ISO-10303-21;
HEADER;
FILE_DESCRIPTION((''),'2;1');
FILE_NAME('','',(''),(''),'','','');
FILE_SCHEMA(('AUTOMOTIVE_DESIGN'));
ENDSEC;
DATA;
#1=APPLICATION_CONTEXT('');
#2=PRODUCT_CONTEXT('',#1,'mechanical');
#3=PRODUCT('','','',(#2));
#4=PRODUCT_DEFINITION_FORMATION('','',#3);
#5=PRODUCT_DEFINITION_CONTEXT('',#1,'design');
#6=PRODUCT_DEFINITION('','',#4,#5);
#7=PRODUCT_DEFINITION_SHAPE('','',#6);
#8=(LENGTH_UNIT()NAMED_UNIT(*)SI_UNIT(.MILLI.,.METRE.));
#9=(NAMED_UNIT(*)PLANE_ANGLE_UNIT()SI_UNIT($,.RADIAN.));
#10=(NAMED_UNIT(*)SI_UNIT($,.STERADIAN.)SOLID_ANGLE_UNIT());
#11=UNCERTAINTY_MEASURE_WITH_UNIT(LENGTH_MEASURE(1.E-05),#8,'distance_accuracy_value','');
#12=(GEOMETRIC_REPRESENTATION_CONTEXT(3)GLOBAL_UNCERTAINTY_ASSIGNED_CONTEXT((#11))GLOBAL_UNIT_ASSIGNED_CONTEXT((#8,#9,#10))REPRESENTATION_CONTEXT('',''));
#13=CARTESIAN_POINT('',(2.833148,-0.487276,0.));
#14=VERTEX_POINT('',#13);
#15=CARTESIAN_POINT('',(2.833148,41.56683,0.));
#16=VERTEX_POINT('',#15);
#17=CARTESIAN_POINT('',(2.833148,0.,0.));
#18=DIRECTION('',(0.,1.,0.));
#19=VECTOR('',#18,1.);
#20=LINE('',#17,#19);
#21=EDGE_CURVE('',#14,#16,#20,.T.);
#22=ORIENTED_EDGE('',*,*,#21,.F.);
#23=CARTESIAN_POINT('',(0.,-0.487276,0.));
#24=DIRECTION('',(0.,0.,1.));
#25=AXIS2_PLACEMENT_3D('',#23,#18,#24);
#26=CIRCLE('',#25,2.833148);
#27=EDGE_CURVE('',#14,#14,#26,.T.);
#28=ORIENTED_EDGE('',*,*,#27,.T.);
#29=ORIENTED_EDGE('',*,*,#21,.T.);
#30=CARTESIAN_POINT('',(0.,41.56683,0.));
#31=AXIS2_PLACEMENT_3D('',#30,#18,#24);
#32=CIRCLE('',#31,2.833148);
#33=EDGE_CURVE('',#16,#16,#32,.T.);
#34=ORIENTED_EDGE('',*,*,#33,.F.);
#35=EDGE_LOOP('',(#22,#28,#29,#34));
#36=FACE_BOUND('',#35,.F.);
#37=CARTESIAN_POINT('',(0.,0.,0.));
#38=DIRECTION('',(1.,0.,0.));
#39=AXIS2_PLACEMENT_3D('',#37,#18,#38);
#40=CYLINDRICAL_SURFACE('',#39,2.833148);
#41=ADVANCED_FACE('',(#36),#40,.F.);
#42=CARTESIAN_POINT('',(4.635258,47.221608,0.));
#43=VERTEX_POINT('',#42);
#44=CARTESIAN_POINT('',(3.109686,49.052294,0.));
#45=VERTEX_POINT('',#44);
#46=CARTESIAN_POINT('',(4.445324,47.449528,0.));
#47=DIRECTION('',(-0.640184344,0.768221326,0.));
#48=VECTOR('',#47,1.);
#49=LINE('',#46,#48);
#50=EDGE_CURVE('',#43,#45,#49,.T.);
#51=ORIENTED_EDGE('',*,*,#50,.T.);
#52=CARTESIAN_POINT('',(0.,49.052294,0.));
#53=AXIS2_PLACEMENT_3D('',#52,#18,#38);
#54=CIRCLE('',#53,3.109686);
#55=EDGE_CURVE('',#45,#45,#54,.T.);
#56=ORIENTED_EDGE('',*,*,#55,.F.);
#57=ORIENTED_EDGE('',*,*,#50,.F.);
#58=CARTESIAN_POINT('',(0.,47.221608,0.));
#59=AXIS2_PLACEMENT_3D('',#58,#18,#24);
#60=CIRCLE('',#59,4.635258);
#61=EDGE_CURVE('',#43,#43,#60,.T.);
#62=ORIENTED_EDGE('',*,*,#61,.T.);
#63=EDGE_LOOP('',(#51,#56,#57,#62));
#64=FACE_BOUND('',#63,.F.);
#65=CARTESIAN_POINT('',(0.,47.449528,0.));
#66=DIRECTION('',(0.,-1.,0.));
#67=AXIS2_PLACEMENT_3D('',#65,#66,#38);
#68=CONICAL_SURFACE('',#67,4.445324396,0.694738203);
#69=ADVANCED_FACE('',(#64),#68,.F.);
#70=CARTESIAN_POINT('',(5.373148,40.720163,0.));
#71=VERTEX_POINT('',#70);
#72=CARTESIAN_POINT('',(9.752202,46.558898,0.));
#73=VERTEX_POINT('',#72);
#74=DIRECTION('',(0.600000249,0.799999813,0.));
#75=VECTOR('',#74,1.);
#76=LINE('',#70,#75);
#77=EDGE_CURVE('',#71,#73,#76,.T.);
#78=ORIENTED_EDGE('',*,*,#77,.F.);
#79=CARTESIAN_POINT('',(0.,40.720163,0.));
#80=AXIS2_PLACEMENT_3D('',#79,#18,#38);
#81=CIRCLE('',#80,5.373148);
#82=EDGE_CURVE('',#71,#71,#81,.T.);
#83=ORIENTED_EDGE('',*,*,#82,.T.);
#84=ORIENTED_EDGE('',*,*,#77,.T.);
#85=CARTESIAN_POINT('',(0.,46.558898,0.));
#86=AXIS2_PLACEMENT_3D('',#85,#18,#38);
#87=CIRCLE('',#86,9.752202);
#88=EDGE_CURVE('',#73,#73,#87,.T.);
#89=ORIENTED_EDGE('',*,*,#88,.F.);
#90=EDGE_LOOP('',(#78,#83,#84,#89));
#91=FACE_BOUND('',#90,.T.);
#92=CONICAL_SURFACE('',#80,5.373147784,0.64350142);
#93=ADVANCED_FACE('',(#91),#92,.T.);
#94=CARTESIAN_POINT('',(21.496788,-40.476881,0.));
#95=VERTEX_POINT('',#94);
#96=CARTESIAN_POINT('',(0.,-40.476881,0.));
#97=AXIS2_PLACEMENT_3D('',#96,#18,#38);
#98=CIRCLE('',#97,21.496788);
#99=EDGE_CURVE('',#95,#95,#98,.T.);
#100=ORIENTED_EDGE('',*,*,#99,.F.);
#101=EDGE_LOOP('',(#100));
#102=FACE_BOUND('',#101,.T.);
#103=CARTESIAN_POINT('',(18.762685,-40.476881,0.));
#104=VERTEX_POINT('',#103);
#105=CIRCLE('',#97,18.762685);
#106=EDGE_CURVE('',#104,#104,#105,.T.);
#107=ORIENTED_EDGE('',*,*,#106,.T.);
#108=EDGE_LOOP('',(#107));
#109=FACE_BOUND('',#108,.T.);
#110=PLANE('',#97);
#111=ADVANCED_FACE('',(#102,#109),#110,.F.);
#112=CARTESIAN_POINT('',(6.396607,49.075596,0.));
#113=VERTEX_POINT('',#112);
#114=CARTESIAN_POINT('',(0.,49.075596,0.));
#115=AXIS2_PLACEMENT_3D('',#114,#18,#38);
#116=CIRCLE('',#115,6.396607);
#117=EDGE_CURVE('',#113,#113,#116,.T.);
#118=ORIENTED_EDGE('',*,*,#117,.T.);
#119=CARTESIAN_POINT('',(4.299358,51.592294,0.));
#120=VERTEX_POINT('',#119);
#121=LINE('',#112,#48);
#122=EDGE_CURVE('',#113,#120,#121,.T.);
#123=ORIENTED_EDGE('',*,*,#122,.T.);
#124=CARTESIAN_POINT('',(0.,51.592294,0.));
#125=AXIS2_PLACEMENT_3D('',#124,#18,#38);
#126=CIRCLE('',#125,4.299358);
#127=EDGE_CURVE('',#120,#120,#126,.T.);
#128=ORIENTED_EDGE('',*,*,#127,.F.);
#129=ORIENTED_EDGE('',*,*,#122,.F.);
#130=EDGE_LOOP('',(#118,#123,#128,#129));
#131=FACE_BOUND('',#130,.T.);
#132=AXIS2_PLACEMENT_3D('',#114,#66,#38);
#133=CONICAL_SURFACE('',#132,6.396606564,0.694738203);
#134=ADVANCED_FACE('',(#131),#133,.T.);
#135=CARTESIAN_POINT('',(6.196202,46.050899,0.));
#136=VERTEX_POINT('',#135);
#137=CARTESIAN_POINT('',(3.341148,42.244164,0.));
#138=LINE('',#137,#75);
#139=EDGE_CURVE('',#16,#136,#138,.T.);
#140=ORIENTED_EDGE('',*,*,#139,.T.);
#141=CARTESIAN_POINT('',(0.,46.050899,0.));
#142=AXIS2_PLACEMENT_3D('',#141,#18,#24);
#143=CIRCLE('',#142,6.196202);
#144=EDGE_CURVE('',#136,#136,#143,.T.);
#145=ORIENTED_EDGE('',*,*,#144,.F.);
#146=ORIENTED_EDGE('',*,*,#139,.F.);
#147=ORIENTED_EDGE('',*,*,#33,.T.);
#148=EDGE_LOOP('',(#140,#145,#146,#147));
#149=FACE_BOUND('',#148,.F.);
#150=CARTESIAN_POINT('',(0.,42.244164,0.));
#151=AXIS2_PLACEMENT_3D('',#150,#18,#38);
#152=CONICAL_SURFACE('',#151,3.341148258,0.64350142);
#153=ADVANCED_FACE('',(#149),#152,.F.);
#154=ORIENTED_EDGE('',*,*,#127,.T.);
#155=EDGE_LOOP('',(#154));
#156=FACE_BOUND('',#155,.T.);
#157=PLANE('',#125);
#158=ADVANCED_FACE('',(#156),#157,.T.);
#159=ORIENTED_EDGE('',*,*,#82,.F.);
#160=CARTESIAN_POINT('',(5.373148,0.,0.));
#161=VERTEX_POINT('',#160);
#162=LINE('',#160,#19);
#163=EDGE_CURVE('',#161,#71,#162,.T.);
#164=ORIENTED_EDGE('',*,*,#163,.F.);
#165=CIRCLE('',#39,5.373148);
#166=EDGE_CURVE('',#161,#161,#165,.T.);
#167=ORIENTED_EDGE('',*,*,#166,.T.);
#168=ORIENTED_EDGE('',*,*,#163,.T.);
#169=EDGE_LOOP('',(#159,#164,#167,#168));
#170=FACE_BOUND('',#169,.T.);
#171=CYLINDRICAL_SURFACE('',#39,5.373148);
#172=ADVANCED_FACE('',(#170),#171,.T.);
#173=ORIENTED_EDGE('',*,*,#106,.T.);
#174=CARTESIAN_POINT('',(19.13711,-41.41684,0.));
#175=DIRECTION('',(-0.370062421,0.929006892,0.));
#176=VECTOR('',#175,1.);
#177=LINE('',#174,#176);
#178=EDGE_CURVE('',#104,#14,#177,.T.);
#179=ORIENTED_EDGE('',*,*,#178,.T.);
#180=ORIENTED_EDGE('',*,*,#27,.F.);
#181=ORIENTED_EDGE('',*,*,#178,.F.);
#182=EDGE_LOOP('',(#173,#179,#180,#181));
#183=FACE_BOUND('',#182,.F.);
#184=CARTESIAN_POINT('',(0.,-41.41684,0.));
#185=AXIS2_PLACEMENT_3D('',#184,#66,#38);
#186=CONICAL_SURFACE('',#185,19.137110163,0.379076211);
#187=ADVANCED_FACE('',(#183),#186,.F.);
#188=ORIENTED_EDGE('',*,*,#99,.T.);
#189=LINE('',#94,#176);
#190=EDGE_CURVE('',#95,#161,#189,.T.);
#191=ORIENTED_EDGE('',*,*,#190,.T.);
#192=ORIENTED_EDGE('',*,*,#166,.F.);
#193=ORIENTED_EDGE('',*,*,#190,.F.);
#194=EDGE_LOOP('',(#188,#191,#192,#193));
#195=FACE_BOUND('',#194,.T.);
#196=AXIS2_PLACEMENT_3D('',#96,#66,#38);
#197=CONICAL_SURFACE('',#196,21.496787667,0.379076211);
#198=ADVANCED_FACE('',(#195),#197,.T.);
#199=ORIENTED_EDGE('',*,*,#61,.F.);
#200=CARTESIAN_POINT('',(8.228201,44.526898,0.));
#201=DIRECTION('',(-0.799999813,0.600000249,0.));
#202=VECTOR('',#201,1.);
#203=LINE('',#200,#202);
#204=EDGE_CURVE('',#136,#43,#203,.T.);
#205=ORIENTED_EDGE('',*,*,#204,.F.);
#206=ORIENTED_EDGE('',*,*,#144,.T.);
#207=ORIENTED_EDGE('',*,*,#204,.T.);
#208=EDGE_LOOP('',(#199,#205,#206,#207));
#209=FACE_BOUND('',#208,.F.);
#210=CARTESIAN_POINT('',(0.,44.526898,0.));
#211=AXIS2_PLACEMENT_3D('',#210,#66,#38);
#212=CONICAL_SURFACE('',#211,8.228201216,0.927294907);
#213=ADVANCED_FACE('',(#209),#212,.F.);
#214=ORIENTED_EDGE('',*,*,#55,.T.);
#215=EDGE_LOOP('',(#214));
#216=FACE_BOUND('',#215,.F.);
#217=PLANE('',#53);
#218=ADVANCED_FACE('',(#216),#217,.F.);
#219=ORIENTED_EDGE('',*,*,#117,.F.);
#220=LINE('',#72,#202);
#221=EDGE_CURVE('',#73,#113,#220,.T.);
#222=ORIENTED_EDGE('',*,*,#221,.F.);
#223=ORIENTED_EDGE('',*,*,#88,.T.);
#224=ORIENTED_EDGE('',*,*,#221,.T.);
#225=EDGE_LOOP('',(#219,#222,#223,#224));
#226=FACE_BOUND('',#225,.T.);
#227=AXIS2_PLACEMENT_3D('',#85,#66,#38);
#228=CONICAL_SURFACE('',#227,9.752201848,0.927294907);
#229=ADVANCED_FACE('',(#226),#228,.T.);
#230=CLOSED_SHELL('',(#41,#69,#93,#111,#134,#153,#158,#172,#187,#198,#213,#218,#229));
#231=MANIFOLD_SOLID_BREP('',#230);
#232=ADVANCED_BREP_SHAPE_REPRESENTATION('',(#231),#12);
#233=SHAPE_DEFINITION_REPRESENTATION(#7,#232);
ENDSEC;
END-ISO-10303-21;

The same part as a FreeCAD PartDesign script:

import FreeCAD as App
import Part
import Sketcher
from FreeCAD import Vector
Q = App.Units.Quantity


def faces_at(feature, points):
    """Names of the faces that lie closest to the given points."""
    faces = feature.Shape.Faces
    near = lambda p: min(range(len(faces)), key=lambda i: faces[i].distToShape(Part.Vertex(*p))[0])
    return sorted({f"Face{near(p) + 1}" for p in points})

doc = App.newDocument("Part")
body = doc.addObject("PartDesign::Body", "Body")

sketch1 = doc.addObject("Sketcher::SketchObject", "Sketch")
body.addObject(sketch1)
sketch1.AttachmentSupport = (doc.XY_Plane, [""])
sketch1.MapMode = "FlatFace"
sketch1.addGeometry([
    Part.LineSegment(Vector(4.299358, 51.592294, 0), Vector(0, 51.592294, 0)),
    Part.LineSegment(Vector(0, 51.592294, 0), Vector(0, -40.476881, 0)),
    Part.LineSegment(Vector(0, -40.476881, 0), Vector(21.496788, -40.476881, 0)),
    Part.LineSegment(Vector(21.496788, -40.476881, 0), Vector(5.373148, 0, 0)),
    Part.LineSegment(Vector(5.373148, 0, 0), Vector(5.373148, 40.720163, 0)),
    Part.LineSegment(Vector(5.373148, 40.720163, 0), Vector(9.752202, 46.558898, 0)),
    Part.LineSegment(Vector(9.752202, 46.558898, 0), Vector(6.396607, 49.075596, 0)),
    Part.LineSegment(Vector(6.396607, 49.075596, 0), Vector(4.299358, 51.592294, 0)),
], False)
sketch1.addConstraint([
    Sketcher.Constraint("Coincident", 0, 2, 1, 1),
    Sketcher.Constraint("Coincident", 1, 2, 2, 1),
    Sketcher.Constraint("Coincident", 2, 2, 3, 1),
    Sketcher.Constraint("Coincident", 3, 2, 4, 1),
    Sketcher.Constraint("Coincident", 4, 2, 5, 1),
    Sketcher.Constraint("Coincident", 5, 2, 6, 1),
    Sketcher.Constraint("Coincident", 6, 2, 7, 1),
    Sketcher.Constraint("Coincident", 7, 2, 0, 1),
    Sketcher.Constraint("Horizontal", 0),
    Sketcher.Constraint("Vertical", 1),
    Sketcher.Constraint("Horizontal", 2),
    Sketcher.Constraint("Vertical", 4),
    Sketcher.Constraint("PointOnObject", 0, 2, -2),
    Sketcher.Constraint("PointOnObject", 3, 2, -1),
    Sketcher.Constraint("Perpendicular", 5, 6),
    Sketcher.Constraint("DistanceX", 0, 2, 0, 1, Q("4.299358 mm")),
    Sketcher.Constraint("DistanceX", -1, 1, 5, 2, Q("9.752202 mm")),
    Sketcher.Constraint("DistanceY", 5, 2, 6, 2, Q("2.516698 mm")),
    Sketcher.Constraint("DistanceY", 6, 2, 0, 2, Q("2.516698 mm")),
    Sketcher.Constraint("Distance", 5, Q("7.29842 mm")),
    Sketcher.Constraint("DistanceX", 2, 1, 2, 2, Q("21.496788 mm")),
    Sketcher.Constraint("DistanceY", 1, 2, 1, 1, Q("92.069175 mm")),
    Sketcher.Constraint("DistanceY", 4, 1, 4, 2, Q("40.720163 mm")),
    Sketcher.Constraint("DistanceY", 1, 2, -1, 1, Q("40.476881 mm")),
])
revolution = doc.addObject("PartDesign::Revolution", "Revolution")
body.addObject(revolution)
revolution.Profile = sketch1
revolution.ReferenceAxis = (sketch1, ["V_Axis"])
revolution.Angle = 360
doc.recompute()

thickness = doc.addObject("PartDesign::Thickness", "Thickness")
body.addObject(thickness)
thickness.Base = (revolution, faces_at(revolution, [(0, -40.477, 0)]))
thickness.Value = Q("0.1 in")
thickness.Reversed = True
thickness.Join = "Intersection"

doc.recompute()
